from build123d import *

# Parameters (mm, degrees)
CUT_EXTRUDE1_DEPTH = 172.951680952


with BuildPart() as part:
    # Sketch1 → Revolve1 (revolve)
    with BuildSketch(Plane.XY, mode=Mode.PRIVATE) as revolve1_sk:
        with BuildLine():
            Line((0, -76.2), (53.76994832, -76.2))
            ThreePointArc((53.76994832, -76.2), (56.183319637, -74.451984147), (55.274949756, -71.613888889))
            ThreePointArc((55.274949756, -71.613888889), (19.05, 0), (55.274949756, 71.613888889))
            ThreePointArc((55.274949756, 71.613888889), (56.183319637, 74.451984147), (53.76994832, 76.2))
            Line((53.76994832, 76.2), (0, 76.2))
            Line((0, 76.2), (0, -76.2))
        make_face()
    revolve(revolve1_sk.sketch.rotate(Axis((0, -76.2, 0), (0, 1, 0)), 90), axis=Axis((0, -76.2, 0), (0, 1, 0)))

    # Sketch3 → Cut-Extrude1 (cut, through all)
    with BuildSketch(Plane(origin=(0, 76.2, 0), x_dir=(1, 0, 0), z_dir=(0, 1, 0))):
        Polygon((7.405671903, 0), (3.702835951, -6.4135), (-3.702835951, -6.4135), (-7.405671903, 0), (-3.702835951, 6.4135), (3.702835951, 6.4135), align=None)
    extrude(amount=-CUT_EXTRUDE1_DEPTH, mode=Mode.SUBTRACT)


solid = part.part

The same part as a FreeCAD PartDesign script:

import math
import FreeCAD as App
import Part
import Sketcher
Q = App.Units.Quantity


def add_polygon(sketch, points):
    """Adds a closed chain of lines whose ends are joined by coincident constraints."""
    first, n = sketch.GeometryCount, len(points)
    for a, b in zip(points, points[1:] + points[:1]):
        sketch.addGeometry(Part.LineSegment(App.Vector(*a, 0), App.Vector(*b, 0)), False)
    for i in range(n):
        sketch.addConstraint(Sketcher.Constraint("Coincident", first + i, 2, first + (i + 1) % n, 1))

doc = App.newDocument("Part")
params = doc.addObject("Spreadsheet::Sheet", "Params")
for row, (alias, value) in enumerate([
    ("sketch1_radius", "0.1 in"),
    ("sketch1_radius2", "3.5 in"),
    ("sketch1_height", "6 in"),
    ("revolution_angle", "360 deg"),
], start=1):
    params.set(f"A{row}", alias)
    params.set(f"B{row}", "=" + value)
    params.setAlias(f"B{row}", alias)

body = doc.addObject("PartDesign::Body", "Body")

sketch1 = doc.addObject("Sketcher::SketchObject", "Sketch")
body.addObject(sketch1)
sketch1.AttachmentSupport = (doc.XY_Plane, [""])
sketch1.MapMode = "FlatFace"
sketch1.addGeometry([
    Part.LineSegment(App.Vector(0, -76.2, 0), App.Vector(53.8, -76.2, 0)),
    Part.ArcOfCircle(Part.Circle(App.Vector(53.8, -73.7, 0), App.Vector(0, 0, 1), 2.5), math.radians(-90), math.radians(54)),
    Part.ArcOfCircle(Part.Circle(App.Vector(108, 0, 0), App.Vector(0, 0, 1), 88.9), math.radians(126), math.radians(234)),
    Part.ArcOfCircle(Part.Circle(App.Vector(53.8, 73.7, 0), App.Vector(0, 0, 1), 2.5), math.radians(-54), math.radians(90)),
    Part.LineSegment(App.Vector(53.8, 76.2, 0), App.Vector(0, 76.2, 0)),
    Part.LineSegment(App.Vector(0, 76.2, 0), App.Vector(0, -76.2, 0)),
], False)
sketch1.addConstraint([
    Sketcher.Constraint("Tangent", 0, 2, 1, 1),
    Sketcher.Constraint("Tangent", 1, 2, 2, 2),
    Sketcher.Constraint("Tangent", 2, 1, 3, 1),
    Sketcher.Constraint("Tangent", 3, 2, 4, 1),
    Sketcher.Constraint("Coincident", 4, 2, 5, 1),
    Sketcher.Constraint("Coincident", 5, 2, 0, 1),
    Sketcher.Constraint("Horizontal", 0),
    Sketcher.Constraint("Horizontal", 4),
    Sketcher.Constraint("Vertical", 5),
    Sketcher.Constraint("Equal", 1, 3),
    Sketcher.Constraint("Symmetric", 4, 2, 5, 2, -1, 1),
    Sketcher.Constraint("PointOnObject", 2, 3, -1),
    Sketcher.Constraint("Radius", 1, Q("0.1 in")),
    Sketcher.Constraint("Radius", 2, Q("3.5 in")),
    Sketcher.Constraint("DistanceY", 5, 2, 5, 1, Q("6 in")),
    Sketcher.Constraint("DistanceX", -1, 1, 2, 3, Q("4.25 in")),
])
sketch1.setExpression("Constraints[12]", "Params.sketch1_radius")
sketch1.setExpression("Constraints[13]", "Params.sketch1_radius2")
sketch1.setExpression("Constraints[14]", "Params.sketch1_height")
revolution = doc.addObject("PartDesign::Revolution", "Revolution")
body.addObject(revolution)
revolution.Profile = sketch1
revolution.ReferenceAxis = (sketch1, ["V_Axis"])
revolution.setExpression("Angle", "Params.revolution_angle")

sketch2 = doc.addObject("Sketcher::SketchObject", "Sketch001")
body.addObject(sketch2)
sketch2.AttachmentSupport = (doc.XZ_Plane, [""])
sketch2.MapMode = "FlatFace"
sketch2.AttachmentOffset = App.Placement(App.Vector(0, 0, -3 * 25.4), App.Rotation())
add_polygon(sketch2, [(4, 6), (7, 0), (4, -6), (-4, -6), (-7, 0), (-4, 6)])
sketch2.addConstraint([
    Sketcher.Constraint("Horizontal", 2),
    Sketcher.Constraint("Horizontal", 5),
    Sketcher.Constraint("Symmetric", 0, 2, 3, 2, -1, 1),
    Sketcher.Constraint("Symmetric", 1, 2, 4, 2, -1, 1),
    Sketcher.Constraint("PointOnObject", 0, 2, -1),
    Sketcher.Constraint("Parallel", 0, 3),
    Sketcher.Constraint("Vertical", 2, 2, 4, 2),
    Sketcher.Constraint("Angle", 0, Q("-60 deg")),
    Sketcher.Constraint("DistanceY", 2, 2, 4, 2, Q("0.505 in")),
    Sketcher.Constraint("DistanceX", 2, 2, 2, 1, 7.405672),
])
pocket1 = doc.addObject("PartDesign::Pocket", "Pocket")
body.addObject(pocket1)
pocket1.Profile = sketch2
pocket1.Type = "ThroughAll"
pocket1.Reversed = True

doc.recompute()
